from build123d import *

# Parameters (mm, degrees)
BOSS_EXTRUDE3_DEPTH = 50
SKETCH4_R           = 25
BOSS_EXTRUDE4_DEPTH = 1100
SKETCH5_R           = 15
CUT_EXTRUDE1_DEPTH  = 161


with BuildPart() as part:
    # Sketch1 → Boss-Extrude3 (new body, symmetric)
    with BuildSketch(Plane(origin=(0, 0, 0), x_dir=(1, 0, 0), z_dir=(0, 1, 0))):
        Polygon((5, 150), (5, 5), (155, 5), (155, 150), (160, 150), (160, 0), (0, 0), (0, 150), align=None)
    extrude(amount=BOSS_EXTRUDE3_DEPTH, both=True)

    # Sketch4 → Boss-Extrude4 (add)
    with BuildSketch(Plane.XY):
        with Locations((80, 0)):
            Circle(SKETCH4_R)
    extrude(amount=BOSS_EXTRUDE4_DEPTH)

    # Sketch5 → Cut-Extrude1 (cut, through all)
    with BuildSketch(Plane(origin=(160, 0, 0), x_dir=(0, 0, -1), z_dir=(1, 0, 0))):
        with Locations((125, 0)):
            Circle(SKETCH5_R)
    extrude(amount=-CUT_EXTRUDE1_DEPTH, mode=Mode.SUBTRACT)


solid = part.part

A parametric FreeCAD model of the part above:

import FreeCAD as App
import Part
import Sketcher

V = App.Vector

doc = App.newDocument("Part")
body = doc.addObject("PartDesign::Body", "Body")

# Sketch on XZ plane
sketch1 = doc.addObject("Sketcher::SketchObject", "Sketch")
body.addObject(sketch1)
sketch1.AttachmentSupport = (doc.XZ_Plane, [""])
sketch1.MapMode = "FlatFace"
sketch1.addGeometry(Part.LineSegment(V(5, -5, 0), V(5, -150, 0)), False)
sketch1.addGeometry(Part.LineSegment(V(5, -150, 0), V(0, -150, 0)), False)
sketch1.addGeometry(Part.LineSegment(V(0, -150, 0), V(0, 0, 0)), False)
sketch1.addGeometry(Part.LineSegment(V(0, 0, 0), V(160, 0, 0)), False)
sketch1.addGeometry(Part.LineSegment(V(160, 0, 0), V(160, -150, 0)), False)
sketch1.addGeometry(Part.LineSegment(V(160, -150, 0), V(155, -150, 0)), False)
sketch1.addGeometry(Part.LineSegment(V(155, -150, 0), V(155, -5, 0)), False)
sketch1.addGeometry(Part.LineSegment(V(155, -5, 0), V(5, -5, 0)), False)
sketch1.addConstraint(Sketcher.Constraint("Coincident", 0, 2, 1, 1))
sketch1.addConstraint(Sketcher.Constraint("Coincident", 1, 2, 2, 1))
sketch1.addConstraint(Sketcher.Constraint("Coincident", 2, 2, 3, 1))
sketch1.addConstraint(Sketcher.Constraint("Coincident", 3, 2, 4, 1))
sketch1.addConstraint(Sketcher.Constraint("Coincident", 4, 2, 5, 1))
sketch1.addConstraint(Sketcher.Constraint("Coincident", 5, 2, 6, 1))
sketch1.addConstraint(Sketcher.Constraint("Coincident", 6, 2, 7, 1))
sketch1.addConstraint(Sketcher.Constraint("Coincident", 7, 2, 0, 1))
sketch1.addConstraint(Sketcher.Constraint("Vertical", 0))
sketch1.addConstraint(Sketcher.Constraint("Horizontal", 1))
sketch1.addConstraint(Sketcher.Constraint("Vertical", 2))
sketch1.addConstraint(Sketcher.Constraint("Horizontal", 3))
sketch1.addConstraint(Sketcher.Constraint("Vertical", 4))
sketch1.addConstraint(Sketcher.Constraint("Horizontal", 5))
sketch1.addConstraint(Sketcher.Constraint("Vertical", 6))
sketch1.addConstraint(Sketcher.Constraint("Horizontal", 7))
sketch1.addConstraint(Sketcher.Constraint("Coincident", 2, 2, -1, 1))
sketch1.addConstraint(Sketcher.Constraint("Horizontal", 1, 2, 4, 2))
sketch1.addConstraint(Sketcher.Constraint("Equal", 1, 5))
sketch1.addConstraint(Sketcher.Constraint("Equal", 7, 2))
sketch1.addConstraint(Sketcher.Constraint("DistanceX", 1, 2, 1, 1, 5.0))
sketch1.addConstraint(Sketcher.Constraint("DistanceX", 3, 1, 3, 2, 160.0))
sketch1.addConstraint(Sketcher.Constraint("DistanceY", 0, 2, 0, 1, 145.0))
pad1 = doc.addObject("PartDesign::Pad", "Pad")
body.addObject(pad1)
pad1.Profile = sketch1
pad1.Length = 100
pad1.Midplane = True

# Sketch on XY plane
sketch2 = doc.addObject("Sketcher::SketchObject", "Sketch001")
body.addObject(sketch2)
sketch2.AttachmentSupport = (doc.XY_Plane, [""])
sketch2.MapMode = "FlatFace"
sketch2.addGeometry(Part.Circle(V(80, 0, 0), V(0, 0, 1), 25), False)
sketch2.addConstraint(Sketcher.Constraint("PointOnObject", 0, 3, -1))
sketch2.addConstraint(Sketcher.Constraint("Diameter", 0, 50.0))
sketch2.addConstraint(Sketcher.Constraint("DistanceX", -1, 1, 0, 3, 80.0))
pad2 = doc.addObject("PartDesign::Pad", "Pad001")
body.addObject(pad2)
pad2.Profile = sketch2
pad2.Length = 1100

# Sketch on YZ plane
sketch3 = doc.addObject("Sketcher::SketchObject", "Sketch002")
body.addObject(sketch3)
sketch3.AttachmentSupport = (doc.YZ_Plane, [""])
sketch3.MapMode = "FlatFace"
sketch3.AttachmentOffset = App.Placement(V(0, 0, 160), App.Rotation())
sketch3.addGeometry(Part.Circle(V(0, -125, 0), V(0, 0, 1), 15), False)
sketch3.addConstraint(Sketcher.Constraint("PointOnObject", 0, 3, -2))
sketch3.addConstraint(Sketcher.Constraint("Diameter", 0, 30.0))
sketch3.addConstraint(Sketcher.Constraint("DistanceY", 0, 3, -1, 1, 125.0))
pocket1 = doc.addObject("PartDesign::Pocket", "Pocket")
body.addObject(pocket1)
pocket1.Profile = sketch3
pocket1.Type = "ThroughAll"

doc.recompute()
